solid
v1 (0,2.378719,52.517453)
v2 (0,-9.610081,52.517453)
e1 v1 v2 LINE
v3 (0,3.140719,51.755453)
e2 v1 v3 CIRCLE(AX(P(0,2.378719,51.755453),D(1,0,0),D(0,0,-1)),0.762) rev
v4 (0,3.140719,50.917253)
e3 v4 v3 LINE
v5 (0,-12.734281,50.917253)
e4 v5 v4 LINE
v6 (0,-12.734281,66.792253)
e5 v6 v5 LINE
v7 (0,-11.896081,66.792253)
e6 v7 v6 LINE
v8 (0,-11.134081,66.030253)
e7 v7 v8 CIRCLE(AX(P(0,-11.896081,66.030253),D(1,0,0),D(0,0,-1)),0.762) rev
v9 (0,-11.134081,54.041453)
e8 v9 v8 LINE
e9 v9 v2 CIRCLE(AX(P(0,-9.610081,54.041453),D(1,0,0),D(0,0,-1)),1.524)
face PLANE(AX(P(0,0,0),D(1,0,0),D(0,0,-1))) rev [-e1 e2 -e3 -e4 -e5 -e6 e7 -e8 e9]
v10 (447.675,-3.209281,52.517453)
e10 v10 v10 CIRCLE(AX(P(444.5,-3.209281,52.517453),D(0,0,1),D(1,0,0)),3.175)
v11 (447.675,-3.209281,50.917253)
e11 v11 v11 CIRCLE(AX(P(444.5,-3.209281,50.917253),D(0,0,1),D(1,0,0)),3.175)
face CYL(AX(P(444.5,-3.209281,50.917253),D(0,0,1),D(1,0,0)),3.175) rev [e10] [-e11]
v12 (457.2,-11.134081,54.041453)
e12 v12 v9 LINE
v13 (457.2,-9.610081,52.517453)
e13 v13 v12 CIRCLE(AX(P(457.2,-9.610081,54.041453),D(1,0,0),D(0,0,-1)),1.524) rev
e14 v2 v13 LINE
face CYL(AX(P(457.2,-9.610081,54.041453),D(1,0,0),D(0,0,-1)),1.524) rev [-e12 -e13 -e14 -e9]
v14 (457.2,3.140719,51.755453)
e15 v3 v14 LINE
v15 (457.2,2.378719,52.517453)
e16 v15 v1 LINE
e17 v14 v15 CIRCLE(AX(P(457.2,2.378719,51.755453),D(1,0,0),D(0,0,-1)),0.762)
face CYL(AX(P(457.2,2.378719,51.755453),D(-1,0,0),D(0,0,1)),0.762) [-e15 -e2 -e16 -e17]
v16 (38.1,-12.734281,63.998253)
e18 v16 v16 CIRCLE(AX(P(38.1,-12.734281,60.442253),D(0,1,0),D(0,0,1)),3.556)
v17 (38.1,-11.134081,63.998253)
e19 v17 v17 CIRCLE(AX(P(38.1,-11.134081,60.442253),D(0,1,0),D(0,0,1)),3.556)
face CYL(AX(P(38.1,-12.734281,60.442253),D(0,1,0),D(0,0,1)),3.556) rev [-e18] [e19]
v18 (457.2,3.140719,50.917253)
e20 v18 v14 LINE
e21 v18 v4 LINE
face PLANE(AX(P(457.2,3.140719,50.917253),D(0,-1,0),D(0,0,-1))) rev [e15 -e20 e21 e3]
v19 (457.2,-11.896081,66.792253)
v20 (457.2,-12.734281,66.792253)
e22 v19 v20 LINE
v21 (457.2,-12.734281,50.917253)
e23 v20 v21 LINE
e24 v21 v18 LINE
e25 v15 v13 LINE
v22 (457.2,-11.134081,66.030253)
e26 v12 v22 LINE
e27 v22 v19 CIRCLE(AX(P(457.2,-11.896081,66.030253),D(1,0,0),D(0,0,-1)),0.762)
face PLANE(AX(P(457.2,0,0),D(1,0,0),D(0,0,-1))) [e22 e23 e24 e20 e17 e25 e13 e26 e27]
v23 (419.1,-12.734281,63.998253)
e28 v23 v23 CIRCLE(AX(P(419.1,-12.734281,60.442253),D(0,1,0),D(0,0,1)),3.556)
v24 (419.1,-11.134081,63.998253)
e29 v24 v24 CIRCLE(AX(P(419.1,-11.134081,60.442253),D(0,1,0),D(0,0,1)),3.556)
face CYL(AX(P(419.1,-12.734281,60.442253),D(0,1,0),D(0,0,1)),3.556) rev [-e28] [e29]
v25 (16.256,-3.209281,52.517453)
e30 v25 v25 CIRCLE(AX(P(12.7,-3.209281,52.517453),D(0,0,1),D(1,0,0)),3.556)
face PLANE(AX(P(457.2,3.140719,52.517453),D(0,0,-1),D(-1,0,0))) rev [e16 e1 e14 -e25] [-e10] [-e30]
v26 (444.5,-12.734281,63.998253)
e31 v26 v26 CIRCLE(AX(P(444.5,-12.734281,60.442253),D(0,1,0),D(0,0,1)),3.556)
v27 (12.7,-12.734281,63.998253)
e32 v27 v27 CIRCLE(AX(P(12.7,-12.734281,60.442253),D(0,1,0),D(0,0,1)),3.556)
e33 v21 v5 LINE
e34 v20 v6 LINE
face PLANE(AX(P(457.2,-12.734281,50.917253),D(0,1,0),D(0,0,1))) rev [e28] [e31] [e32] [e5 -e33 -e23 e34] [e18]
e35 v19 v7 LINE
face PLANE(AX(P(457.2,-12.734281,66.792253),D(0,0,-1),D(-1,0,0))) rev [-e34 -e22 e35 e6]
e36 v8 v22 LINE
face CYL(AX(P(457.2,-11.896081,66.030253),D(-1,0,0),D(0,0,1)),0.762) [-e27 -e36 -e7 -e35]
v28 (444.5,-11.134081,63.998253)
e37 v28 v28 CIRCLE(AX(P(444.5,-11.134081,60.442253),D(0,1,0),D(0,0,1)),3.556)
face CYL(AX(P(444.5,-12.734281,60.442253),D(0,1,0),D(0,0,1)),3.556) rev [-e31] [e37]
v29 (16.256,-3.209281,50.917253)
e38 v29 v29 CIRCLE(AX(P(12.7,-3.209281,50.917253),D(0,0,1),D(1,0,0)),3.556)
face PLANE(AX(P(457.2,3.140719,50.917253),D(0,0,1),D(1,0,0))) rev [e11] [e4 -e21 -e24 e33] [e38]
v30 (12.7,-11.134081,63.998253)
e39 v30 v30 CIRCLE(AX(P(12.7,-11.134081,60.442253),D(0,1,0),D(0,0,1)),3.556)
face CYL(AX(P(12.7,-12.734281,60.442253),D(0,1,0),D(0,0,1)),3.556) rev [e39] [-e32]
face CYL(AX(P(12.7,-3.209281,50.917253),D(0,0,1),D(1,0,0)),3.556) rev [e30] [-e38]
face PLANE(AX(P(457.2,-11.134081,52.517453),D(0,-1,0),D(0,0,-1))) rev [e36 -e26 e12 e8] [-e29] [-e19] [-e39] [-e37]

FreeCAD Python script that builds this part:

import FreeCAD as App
import Part
import Sketcher

V = App.Vector
Q = App.Units.Quantity


def edges_at(feature, points):
    """Names of the edges that pass closest to the given points."""
    edges = feature.Shape.Edges
    near = lambda p: min(range(len(edges)), key=lambda i: edges[i].distToShape(Part.Vertex(*p))[0])
    return sorted({f"Edge{near(p) + 1}" for p in points})

doc = App.newDocument("Part")
body = doc.addObject("PartDesign::Body", "Body")

# Sketch on YZ plane
sketch1 = body.newObject("Sketcher::SketchObject", "Sketch")
sketch1.AttachmentSupport = (doc.getObject("YZ_Plane"), [""])
sketch1.MapMode = "FlatFace"
sketch1.addGeometry(Part.LineSegment(V(-12.7, 50.9, 0), V(3.1, 50.9, 0)), False)
sketch1.addGeometry(Part.LineSegment(V(3.1, 50.9, 0), V(3.1, 52.5, 0)), False)
sketch1.addGeometry(Part.LineSegment(V(3.1, 52.5, 0), V(-11.1, 52.5, 0)), False)
sketch1.addGeometry(Part.LineSegment(V(-11.1, 52.5, 0), V(-11.1, 66.8, 0)), False)
sketch1.addGeometry(Part.LineSegment(V(-11.1, 66.8, 0), V(-12.7, 66.8, 0)), False)
sketch1.addGeometry(Part.LineSegment(V(-12.7, 66.8, 0), V(-12.7, 50.9, 0)), False)
sketch1.addConstraint(Sketcher.Constraint("Coincident", 0, 2, 1, 1))
sketch1.addConstraint(Sketcher.Constraint("Coincident", 1, 2, 2, 1))
sketch1.addConstraint(Sketcher.Constraint("Coincident", 2, 2, 3, 1))
sketch1.addConstraint(Sketcher.Constraint("Coincident", 3, 2, 4, 1))
sketch1.addConstraint(Sketcher.Constraint("Coincident", 4, 2, 5, 1))
sketch1.addConstraint(Sketcher.Constraint("Coincident", 5, 2, 0, 1))
sketch1.addConstraint(Sketcher.Constraint("Horizontal", 0))
sketch1.addConstraint(Sketcher.Constraint("Vertical", 1))
sketch1.addConstraint(Sketcher.Constraint("Horizontal", 2))
sketch1.addConstraint(Sketcher.Constraint("Vertical", 3))
sketch1.addConstraint(Sketcher.Constraint("Horizontal", 4))
sketch1.addConstraint(Sketcher.Constraint("Vertical", 5))
sketch1.addConstraint(Sketcher.Constraint("Equal", 4, 1))
sketch1.addConstraint(Sketcher.Constraint("Equal", 2, 3))
sketch1.addConstraint(Sketcher.Constraint("DistanceX", 0, 1, 0, 2, Q("0.625 in")))
sketch1.addConstraint(Sketcher.Constraint("DistanceX", 2, 2, 2, 1, Q("0.562 in")))
sketch1.addConstraint(Sketcher.Constraint("DistanceX", -1, 1, 0, 2, 3.140719))
sketch1.addConstraint(Sketcher.Constraint("DistanceY", -1, 1, 0, 2, 50.917253))
pad1 = body.newObject("PartDesign::Pad", "Pad")
pad1.Profile = sketch1
pad1.Length = Q("18 in")
doc.recompute()

fillet = body.newObject("PartDesign::Fillet", "Fillet")
fillet.Base = (pad1, edges_at(pad1, [(228.6, -11.134, 66.792), (228.6, 3.141, 52.517)]))
fillet.Radius = Q("0.03 in")
doc.recompute()

fillet2 = body.newObject("PartDesign::Fillet", "Fillet001")
fillet2.Base = (fillet, edges_at(fillet, [(228.6, -11.134, 52.517)]))
fillet2.Radius = Q("0.06 in")

# Sketch on XZ plane
sketch2 = body.newObject("Sketcher::SketchObject", "Sketch001")
sketch2.AttachmentSupport = (doc.getObject("XZ_Plane"), [""])
sketch2.MapMode = "FlatFace"
sketch2.AttachmentOffset = App.Placement(V(0, 0, 11.134081), App.Rotation())
sketch2.addGeometry(Part.Circle(V(444.5, 60.4, 0), V(0, 0, 1), 3.6), False)
sketch2.addGeometry(Part.Circle(V(419.1, 60.4, 0), V(0, 0, 1), 3.6), False)
sketch2.addGeometry(Part.Circle(V(12.7, 60.4, 0), V(0, 0, 1), 3.6), False)
sketch2.addGeometry(Part.Circle(V(38.1, 60.4, 0), V(0, 0, 1), 3.6), False)
sketch2.addConstraint(Sketcher.Constraint("Equal", 0, 1))
sketch2.addConstraint(Sketcher.Constraint("Equal", 1, 2))
sketch2.addConstraint(Sketcher.Constraint("Equal", 2, 3))
sketch2.addConstraint(Sketcher.Constraint("Horizontal", 0, 3, 1, 3))
sketch2.addConstraint(Sketcher.Constraint("Horizontal", 1, 3, 2, 3))
sketch2.addConstraint(Sketcher.Constraint("Horizontal", 2, 3, 3, 3))
sketch2.addConstraint(Sketcher.Constraint("Diameter", 0, Q("0.28 in")))
sketch2.addConstraint(Sketcher.Constraint("DistanceX", 1, 3, 0, 3, Q("1 in")))
sketch2.addConstraint(Sketcher.Constraint("DistanceX", 2, 3, 1, 3, Q("16 in")))
sketch2.addConstraint(Sketcher.Constraint("DistanceX", 2, 3, 3, 3, Q("1 in")))
sketch2.addConstraint(Sketcher.Constraint("DistanceX", -1, 1, 0, 3, Q("17.5 in")))
sketch2.addConstraint(Sketcher.Constraint("DistanceY", -1, 1, 0, 3, 60.442253))
pocket1 = body.newObject("PartDesign::Pocket", "Pocket")
pocket1.Profile = sketch2
pocket1.Type = "ThroughAll"
pocket1.Reversed = True

# Sketch on XY plane
sketch3 = body.newObject("Sketcher::SketchObject", "Sketch002")
sketch3.AttachmentSupport = (doc.getObject("XY_Plane"), [""])
sketch3.MapMode = "FlatFace"
sketch3.AttachmentOffset = App.Placement(V(0, 0, 52.517453), App.Rotation())
sketch3.addGeometry(Part.Circle(V(12.7, -3.2, 0), V(0, 0, 1), 3.6), False)
sketch3.addGeometry(Part.Circle(V(444.5, -3.2, 0), V(0, 0, 1), 3.2), False)
sketch3.addConstraint(Sketcher.Constraint("Horizontal", 0, 3, 1, 3))
sketch3.addConstraint(Sketcher.Constraint("Diameter", 0, Q("0.28 in")))
sketch3.addConstraint(Sketcher.Constraint("Diameter", 1, Q("0.25 in")))
sketch3.addConstraint(Sketcher.Constraint("DistanceX", 0, 3, 1, 3, Q("17 in")))
sketch3.addConstraint(Sketcher.Constraint("DistanceX", -1, 1, 0, 3, Q("0.5 in")))
sketch3.addConstraint(Sketcher.Constraint("DistanceY", 0, 3, -1, 1, 3.209281))
pocket2 = body.newObject("PartDesign::Pocket", "Pocket001")
pocket2.Profile = sketch3
pocket2.Type = "ThroughAll"

doc.recompute()
